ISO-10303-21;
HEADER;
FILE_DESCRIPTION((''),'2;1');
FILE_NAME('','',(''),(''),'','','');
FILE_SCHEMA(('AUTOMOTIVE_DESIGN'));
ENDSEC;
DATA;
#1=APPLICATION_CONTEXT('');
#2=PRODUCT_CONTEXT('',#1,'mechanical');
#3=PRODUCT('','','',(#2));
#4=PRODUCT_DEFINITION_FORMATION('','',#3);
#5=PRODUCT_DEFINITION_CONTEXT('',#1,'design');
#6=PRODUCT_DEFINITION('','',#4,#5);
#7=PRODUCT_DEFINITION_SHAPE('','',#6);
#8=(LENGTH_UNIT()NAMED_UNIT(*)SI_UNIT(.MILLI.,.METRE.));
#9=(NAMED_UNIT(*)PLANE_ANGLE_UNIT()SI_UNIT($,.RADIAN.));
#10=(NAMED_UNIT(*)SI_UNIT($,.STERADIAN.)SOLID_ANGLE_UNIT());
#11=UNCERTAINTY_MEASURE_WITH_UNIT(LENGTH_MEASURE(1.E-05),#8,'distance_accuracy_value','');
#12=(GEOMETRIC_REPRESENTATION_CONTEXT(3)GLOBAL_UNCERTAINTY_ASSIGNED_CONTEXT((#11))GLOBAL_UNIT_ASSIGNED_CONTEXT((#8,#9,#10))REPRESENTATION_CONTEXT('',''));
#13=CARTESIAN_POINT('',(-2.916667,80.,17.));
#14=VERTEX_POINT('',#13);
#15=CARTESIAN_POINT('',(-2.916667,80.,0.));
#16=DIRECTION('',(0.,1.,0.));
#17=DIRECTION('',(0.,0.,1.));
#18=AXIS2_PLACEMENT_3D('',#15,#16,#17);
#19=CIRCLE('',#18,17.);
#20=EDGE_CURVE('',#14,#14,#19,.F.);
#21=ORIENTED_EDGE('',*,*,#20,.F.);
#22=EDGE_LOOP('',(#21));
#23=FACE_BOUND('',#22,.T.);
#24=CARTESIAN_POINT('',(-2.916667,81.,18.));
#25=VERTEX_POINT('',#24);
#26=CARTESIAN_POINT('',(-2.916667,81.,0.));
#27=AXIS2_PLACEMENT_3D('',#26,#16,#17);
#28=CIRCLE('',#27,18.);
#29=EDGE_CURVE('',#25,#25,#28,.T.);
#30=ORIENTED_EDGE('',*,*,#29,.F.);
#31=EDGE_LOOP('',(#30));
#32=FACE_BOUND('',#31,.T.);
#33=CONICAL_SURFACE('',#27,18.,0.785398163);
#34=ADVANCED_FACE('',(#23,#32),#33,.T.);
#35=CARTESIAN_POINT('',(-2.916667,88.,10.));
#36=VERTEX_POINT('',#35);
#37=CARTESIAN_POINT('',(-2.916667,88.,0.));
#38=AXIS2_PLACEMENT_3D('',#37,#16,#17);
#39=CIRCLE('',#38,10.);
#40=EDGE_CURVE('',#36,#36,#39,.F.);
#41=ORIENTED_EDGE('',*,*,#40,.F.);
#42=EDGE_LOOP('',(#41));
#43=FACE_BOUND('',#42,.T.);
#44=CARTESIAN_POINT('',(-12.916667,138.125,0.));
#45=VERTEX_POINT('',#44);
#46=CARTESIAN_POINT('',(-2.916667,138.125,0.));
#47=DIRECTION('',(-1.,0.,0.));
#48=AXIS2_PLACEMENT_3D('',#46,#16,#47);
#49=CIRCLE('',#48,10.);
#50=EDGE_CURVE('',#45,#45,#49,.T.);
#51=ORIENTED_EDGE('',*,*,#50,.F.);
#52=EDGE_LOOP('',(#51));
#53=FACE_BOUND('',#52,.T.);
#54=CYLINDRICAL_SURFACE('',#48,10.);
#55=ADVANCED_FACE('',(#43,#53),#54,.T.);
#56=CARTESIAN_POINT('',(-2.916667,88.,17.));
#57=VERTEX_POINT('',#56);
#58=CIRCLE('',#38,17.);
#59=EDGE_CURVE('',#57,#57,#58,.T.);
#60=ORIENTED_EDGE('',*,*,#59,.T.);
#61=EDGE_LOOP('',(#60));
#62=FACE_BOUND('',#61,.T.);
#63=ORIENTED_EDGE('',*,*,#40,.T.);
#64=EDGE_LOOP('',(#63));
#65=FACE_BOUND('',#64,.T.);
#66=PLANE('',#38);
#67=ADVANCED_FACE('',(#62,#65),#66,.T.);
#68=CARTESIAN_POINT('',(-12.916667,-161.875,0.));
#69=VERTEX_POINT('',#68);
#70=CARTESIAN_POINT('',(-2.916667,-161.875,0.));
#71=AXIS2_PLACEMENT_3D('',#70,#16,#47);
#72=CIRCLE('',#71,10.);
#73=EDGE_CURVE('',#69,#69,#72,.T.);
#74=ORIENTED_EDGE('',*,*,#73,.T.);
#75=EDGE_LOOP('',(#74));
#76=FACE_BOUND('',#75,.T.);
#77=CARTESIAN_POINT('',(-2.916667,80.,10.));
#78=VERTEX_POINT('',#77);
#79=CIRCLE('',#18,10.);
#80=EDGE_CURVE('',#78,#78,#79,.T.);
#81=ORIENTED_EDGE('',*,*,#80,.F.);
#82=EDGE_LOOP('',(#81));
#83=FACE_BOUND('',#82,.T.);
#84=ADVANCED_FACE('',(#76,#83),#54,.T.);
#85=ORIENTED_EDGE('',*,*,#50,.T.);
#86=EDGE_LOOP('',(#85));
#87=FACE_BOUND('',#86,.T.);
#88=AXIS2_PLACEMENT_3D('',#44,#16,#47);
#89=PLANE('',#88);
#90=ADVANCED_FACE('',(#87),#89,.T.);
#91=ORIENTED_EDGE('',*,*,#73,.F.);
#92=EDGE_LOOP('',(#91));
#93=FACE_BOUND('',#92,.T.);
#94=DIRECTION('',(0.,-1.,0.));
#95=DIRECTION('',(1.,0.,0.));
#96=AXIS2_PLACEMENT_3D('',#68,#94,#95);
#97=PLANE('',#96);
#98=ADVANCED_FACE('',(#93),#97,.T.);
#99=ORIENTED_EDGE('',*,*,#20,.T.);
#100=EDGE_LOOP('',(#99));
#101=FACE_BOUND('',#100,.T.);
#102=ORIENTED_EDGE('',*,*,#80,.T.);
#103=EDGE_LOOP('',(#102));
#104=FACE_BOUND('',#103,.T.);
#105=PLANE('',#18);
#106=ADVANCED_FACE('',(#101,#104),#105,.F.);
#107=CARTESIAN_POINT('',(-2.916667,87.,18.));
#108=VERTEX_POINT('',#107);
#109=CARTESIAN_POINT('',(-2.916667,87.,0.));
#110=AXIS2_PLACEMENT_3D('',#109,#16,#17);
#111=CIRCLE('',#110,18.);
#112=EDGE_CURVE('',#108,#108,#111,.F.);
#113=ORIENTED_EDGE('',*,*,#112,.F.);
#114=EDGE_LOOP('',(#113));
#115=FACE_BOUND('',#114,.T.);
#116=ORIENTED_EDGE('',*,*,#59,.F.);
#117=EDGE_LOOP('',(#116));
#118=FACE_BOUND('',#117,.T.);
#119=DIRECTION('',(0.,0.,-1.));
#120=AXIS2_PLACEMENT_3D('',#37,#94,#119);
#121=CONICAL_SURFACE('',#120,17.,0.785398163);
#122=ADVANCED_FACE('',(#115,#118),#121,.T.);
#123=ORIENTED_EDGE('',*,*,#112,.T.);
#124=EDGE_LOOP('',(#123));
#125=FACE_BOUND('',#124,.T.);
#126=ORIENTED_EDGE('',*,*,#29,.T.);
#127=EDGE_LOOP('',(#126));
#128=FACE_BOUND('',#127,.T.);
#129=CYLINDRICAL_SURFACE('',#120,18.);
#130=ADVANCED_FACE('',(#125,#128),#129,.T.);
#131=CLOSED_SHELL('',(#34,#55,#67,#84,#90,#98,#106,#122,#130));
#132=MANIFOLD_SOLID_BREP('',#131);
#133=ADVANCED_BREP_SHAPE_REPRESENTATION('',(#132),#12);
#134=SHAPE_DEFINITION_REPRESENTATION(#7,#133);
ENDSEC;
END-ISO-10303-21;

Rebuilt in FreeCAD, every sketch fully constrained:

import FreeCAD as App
import Part
import Sketcher

V = App.Vector


def edges_at(feature, points):
    """Names of the edges that pass closest to the given points."""
    edges = feature.Shape.Edges
    near = lambda p: min(range(len(edges)), key=lambda i: edges[i].distToShape(Part.Vertex(*p))[0])
    return sorted({f"Edge{near(p) + 1}" for p in points})


def add_polygon(sketch, points):
    """Adds a closed chain of lines whose ends are joined by coincident constraints."""
    first, n = sketch.GeometryCount, len(points)
    for a, b in zip(points, points[1:] + points[:1]):
        sketch.addGeometry(Part.LineSegment(App.Vector(*a, 0), App.Vector(*b, 0)), False)
    for i in range(n):
        sketch.addConstraint(Sketcher.Constraint("Coincident", first + i, 2, first + (i + 1) % n, 1))

doc = App.newDocument("Part")
body = doc.addObject("PartDesign::Body", "Body")

sketch1 = doc.addObject("Sketcher::SketchObject", "Sketch")
body.addObject(sketch1)
sketch1.AttachmentSupport = (doc.XY_Plane, [""])
sketch1.MapMode = "FlatFace"
add_polygon(sketch1, [(-13, 138), (-13, -162), (-3, -162), (-3, 138)])
sketch1.addGeometry(Part.LineSegment(V(-3, 138, 0), V(-3, -162, 0)), True)
sketch1.addConstraint(Sketcher.Constraint("Vertical", 0))
sketch1.addConstraint(Sketcher.Constraint("Horizontal", 1))
sketch1.addConstraint(Sketcher.Constraint("Vertical", 2))
sketch1.addConstraint(Sketcher.Constraint("Horizontal", 3))
sketch1.addConstraint(Sketcher.Constraint("Vertical", 4))
sketch1.addConstraint(Sketcher.Constraint("Coincident", 4, 1, 2, 2))
sketch1.addConstraint(Sketcher.Constraint("Horizontal", 0, 2, 4, 2))
sketch1.addConstraint(Sketcher.Constraint("DistanceX", 1, 1, 1, 2, 10.0))
sketch1.addConstraint(Sketcher.Constraint("DistanceY", 0, 2, 0, 1, 300.0))
sketch1.addConstraint(Sketcher.Constraint("DistanceY", 0, 2, -1, 1, 161.875))
sketch1.addConstraint(Sketcher.Constraint("DistanceX", 0, 2, -1, 1, 12.916667))
revolution = doc.addObject("PartDesign::Revolution", "Revolution")
body.addObject(revolution)
revolution.Profile = sketch1
revolution.ReferenceAxis = (sketch1, ["Axis0"])
revolution.Angle = 360

sketch2 = doc.addObject("Sketcher::SketchObject", "Sketch001")
body.addObject(sketch2)
sketch2.AttachmentSupport = (doc.XZ_Plane, [""])
sketch2.MapMode = "FlatFace"
sketch2.AttachmentOffset = App.Placement(V(0, 0, -88), App.Rotation())
sketch2.addGeometry(Part.Circle(V(-3, 0, 0), V(0, 0, 1), 18), False)
sketch2.addGeometry(Part.Circle(V(-3, 0, 0), V(0, 0, 1), 10), False)
sketch2.addConstraint(Sketcher.Constraint("Coincident", 1, 3, 0, 3))
sketch2.addConstraint(Sketcher.Constraint("PointOnObject", 0, 3, -1))
sketch2.addConstraint(Sketcher.Constraint("Diameter", 0, 36.0))
sketch2.addConstraint(Sketcher.Constraint("Diameter", 1, 20.0))
sketch2.addConstraint(Sketcher.Constraint("DistanceX", 0, 3, -1, 1, 2.916667))
pad1 = doc.addObject("PartDesign::Pad", "Pad")
body.addObject(pad1)
pad1.Profile = sketch2
pad1.Length = 8
doc.recompute()

chamfer = doc.addObject("PartDesign::Chamfer", "Chamfer")
body.addObject(chamfer)
chamfer.Base = (pad1, edges_at(pad1, [(-2.917, 88, -18), (-2.917, 80, -18)]))
chamfer.Size = 1

doc.recompute()
